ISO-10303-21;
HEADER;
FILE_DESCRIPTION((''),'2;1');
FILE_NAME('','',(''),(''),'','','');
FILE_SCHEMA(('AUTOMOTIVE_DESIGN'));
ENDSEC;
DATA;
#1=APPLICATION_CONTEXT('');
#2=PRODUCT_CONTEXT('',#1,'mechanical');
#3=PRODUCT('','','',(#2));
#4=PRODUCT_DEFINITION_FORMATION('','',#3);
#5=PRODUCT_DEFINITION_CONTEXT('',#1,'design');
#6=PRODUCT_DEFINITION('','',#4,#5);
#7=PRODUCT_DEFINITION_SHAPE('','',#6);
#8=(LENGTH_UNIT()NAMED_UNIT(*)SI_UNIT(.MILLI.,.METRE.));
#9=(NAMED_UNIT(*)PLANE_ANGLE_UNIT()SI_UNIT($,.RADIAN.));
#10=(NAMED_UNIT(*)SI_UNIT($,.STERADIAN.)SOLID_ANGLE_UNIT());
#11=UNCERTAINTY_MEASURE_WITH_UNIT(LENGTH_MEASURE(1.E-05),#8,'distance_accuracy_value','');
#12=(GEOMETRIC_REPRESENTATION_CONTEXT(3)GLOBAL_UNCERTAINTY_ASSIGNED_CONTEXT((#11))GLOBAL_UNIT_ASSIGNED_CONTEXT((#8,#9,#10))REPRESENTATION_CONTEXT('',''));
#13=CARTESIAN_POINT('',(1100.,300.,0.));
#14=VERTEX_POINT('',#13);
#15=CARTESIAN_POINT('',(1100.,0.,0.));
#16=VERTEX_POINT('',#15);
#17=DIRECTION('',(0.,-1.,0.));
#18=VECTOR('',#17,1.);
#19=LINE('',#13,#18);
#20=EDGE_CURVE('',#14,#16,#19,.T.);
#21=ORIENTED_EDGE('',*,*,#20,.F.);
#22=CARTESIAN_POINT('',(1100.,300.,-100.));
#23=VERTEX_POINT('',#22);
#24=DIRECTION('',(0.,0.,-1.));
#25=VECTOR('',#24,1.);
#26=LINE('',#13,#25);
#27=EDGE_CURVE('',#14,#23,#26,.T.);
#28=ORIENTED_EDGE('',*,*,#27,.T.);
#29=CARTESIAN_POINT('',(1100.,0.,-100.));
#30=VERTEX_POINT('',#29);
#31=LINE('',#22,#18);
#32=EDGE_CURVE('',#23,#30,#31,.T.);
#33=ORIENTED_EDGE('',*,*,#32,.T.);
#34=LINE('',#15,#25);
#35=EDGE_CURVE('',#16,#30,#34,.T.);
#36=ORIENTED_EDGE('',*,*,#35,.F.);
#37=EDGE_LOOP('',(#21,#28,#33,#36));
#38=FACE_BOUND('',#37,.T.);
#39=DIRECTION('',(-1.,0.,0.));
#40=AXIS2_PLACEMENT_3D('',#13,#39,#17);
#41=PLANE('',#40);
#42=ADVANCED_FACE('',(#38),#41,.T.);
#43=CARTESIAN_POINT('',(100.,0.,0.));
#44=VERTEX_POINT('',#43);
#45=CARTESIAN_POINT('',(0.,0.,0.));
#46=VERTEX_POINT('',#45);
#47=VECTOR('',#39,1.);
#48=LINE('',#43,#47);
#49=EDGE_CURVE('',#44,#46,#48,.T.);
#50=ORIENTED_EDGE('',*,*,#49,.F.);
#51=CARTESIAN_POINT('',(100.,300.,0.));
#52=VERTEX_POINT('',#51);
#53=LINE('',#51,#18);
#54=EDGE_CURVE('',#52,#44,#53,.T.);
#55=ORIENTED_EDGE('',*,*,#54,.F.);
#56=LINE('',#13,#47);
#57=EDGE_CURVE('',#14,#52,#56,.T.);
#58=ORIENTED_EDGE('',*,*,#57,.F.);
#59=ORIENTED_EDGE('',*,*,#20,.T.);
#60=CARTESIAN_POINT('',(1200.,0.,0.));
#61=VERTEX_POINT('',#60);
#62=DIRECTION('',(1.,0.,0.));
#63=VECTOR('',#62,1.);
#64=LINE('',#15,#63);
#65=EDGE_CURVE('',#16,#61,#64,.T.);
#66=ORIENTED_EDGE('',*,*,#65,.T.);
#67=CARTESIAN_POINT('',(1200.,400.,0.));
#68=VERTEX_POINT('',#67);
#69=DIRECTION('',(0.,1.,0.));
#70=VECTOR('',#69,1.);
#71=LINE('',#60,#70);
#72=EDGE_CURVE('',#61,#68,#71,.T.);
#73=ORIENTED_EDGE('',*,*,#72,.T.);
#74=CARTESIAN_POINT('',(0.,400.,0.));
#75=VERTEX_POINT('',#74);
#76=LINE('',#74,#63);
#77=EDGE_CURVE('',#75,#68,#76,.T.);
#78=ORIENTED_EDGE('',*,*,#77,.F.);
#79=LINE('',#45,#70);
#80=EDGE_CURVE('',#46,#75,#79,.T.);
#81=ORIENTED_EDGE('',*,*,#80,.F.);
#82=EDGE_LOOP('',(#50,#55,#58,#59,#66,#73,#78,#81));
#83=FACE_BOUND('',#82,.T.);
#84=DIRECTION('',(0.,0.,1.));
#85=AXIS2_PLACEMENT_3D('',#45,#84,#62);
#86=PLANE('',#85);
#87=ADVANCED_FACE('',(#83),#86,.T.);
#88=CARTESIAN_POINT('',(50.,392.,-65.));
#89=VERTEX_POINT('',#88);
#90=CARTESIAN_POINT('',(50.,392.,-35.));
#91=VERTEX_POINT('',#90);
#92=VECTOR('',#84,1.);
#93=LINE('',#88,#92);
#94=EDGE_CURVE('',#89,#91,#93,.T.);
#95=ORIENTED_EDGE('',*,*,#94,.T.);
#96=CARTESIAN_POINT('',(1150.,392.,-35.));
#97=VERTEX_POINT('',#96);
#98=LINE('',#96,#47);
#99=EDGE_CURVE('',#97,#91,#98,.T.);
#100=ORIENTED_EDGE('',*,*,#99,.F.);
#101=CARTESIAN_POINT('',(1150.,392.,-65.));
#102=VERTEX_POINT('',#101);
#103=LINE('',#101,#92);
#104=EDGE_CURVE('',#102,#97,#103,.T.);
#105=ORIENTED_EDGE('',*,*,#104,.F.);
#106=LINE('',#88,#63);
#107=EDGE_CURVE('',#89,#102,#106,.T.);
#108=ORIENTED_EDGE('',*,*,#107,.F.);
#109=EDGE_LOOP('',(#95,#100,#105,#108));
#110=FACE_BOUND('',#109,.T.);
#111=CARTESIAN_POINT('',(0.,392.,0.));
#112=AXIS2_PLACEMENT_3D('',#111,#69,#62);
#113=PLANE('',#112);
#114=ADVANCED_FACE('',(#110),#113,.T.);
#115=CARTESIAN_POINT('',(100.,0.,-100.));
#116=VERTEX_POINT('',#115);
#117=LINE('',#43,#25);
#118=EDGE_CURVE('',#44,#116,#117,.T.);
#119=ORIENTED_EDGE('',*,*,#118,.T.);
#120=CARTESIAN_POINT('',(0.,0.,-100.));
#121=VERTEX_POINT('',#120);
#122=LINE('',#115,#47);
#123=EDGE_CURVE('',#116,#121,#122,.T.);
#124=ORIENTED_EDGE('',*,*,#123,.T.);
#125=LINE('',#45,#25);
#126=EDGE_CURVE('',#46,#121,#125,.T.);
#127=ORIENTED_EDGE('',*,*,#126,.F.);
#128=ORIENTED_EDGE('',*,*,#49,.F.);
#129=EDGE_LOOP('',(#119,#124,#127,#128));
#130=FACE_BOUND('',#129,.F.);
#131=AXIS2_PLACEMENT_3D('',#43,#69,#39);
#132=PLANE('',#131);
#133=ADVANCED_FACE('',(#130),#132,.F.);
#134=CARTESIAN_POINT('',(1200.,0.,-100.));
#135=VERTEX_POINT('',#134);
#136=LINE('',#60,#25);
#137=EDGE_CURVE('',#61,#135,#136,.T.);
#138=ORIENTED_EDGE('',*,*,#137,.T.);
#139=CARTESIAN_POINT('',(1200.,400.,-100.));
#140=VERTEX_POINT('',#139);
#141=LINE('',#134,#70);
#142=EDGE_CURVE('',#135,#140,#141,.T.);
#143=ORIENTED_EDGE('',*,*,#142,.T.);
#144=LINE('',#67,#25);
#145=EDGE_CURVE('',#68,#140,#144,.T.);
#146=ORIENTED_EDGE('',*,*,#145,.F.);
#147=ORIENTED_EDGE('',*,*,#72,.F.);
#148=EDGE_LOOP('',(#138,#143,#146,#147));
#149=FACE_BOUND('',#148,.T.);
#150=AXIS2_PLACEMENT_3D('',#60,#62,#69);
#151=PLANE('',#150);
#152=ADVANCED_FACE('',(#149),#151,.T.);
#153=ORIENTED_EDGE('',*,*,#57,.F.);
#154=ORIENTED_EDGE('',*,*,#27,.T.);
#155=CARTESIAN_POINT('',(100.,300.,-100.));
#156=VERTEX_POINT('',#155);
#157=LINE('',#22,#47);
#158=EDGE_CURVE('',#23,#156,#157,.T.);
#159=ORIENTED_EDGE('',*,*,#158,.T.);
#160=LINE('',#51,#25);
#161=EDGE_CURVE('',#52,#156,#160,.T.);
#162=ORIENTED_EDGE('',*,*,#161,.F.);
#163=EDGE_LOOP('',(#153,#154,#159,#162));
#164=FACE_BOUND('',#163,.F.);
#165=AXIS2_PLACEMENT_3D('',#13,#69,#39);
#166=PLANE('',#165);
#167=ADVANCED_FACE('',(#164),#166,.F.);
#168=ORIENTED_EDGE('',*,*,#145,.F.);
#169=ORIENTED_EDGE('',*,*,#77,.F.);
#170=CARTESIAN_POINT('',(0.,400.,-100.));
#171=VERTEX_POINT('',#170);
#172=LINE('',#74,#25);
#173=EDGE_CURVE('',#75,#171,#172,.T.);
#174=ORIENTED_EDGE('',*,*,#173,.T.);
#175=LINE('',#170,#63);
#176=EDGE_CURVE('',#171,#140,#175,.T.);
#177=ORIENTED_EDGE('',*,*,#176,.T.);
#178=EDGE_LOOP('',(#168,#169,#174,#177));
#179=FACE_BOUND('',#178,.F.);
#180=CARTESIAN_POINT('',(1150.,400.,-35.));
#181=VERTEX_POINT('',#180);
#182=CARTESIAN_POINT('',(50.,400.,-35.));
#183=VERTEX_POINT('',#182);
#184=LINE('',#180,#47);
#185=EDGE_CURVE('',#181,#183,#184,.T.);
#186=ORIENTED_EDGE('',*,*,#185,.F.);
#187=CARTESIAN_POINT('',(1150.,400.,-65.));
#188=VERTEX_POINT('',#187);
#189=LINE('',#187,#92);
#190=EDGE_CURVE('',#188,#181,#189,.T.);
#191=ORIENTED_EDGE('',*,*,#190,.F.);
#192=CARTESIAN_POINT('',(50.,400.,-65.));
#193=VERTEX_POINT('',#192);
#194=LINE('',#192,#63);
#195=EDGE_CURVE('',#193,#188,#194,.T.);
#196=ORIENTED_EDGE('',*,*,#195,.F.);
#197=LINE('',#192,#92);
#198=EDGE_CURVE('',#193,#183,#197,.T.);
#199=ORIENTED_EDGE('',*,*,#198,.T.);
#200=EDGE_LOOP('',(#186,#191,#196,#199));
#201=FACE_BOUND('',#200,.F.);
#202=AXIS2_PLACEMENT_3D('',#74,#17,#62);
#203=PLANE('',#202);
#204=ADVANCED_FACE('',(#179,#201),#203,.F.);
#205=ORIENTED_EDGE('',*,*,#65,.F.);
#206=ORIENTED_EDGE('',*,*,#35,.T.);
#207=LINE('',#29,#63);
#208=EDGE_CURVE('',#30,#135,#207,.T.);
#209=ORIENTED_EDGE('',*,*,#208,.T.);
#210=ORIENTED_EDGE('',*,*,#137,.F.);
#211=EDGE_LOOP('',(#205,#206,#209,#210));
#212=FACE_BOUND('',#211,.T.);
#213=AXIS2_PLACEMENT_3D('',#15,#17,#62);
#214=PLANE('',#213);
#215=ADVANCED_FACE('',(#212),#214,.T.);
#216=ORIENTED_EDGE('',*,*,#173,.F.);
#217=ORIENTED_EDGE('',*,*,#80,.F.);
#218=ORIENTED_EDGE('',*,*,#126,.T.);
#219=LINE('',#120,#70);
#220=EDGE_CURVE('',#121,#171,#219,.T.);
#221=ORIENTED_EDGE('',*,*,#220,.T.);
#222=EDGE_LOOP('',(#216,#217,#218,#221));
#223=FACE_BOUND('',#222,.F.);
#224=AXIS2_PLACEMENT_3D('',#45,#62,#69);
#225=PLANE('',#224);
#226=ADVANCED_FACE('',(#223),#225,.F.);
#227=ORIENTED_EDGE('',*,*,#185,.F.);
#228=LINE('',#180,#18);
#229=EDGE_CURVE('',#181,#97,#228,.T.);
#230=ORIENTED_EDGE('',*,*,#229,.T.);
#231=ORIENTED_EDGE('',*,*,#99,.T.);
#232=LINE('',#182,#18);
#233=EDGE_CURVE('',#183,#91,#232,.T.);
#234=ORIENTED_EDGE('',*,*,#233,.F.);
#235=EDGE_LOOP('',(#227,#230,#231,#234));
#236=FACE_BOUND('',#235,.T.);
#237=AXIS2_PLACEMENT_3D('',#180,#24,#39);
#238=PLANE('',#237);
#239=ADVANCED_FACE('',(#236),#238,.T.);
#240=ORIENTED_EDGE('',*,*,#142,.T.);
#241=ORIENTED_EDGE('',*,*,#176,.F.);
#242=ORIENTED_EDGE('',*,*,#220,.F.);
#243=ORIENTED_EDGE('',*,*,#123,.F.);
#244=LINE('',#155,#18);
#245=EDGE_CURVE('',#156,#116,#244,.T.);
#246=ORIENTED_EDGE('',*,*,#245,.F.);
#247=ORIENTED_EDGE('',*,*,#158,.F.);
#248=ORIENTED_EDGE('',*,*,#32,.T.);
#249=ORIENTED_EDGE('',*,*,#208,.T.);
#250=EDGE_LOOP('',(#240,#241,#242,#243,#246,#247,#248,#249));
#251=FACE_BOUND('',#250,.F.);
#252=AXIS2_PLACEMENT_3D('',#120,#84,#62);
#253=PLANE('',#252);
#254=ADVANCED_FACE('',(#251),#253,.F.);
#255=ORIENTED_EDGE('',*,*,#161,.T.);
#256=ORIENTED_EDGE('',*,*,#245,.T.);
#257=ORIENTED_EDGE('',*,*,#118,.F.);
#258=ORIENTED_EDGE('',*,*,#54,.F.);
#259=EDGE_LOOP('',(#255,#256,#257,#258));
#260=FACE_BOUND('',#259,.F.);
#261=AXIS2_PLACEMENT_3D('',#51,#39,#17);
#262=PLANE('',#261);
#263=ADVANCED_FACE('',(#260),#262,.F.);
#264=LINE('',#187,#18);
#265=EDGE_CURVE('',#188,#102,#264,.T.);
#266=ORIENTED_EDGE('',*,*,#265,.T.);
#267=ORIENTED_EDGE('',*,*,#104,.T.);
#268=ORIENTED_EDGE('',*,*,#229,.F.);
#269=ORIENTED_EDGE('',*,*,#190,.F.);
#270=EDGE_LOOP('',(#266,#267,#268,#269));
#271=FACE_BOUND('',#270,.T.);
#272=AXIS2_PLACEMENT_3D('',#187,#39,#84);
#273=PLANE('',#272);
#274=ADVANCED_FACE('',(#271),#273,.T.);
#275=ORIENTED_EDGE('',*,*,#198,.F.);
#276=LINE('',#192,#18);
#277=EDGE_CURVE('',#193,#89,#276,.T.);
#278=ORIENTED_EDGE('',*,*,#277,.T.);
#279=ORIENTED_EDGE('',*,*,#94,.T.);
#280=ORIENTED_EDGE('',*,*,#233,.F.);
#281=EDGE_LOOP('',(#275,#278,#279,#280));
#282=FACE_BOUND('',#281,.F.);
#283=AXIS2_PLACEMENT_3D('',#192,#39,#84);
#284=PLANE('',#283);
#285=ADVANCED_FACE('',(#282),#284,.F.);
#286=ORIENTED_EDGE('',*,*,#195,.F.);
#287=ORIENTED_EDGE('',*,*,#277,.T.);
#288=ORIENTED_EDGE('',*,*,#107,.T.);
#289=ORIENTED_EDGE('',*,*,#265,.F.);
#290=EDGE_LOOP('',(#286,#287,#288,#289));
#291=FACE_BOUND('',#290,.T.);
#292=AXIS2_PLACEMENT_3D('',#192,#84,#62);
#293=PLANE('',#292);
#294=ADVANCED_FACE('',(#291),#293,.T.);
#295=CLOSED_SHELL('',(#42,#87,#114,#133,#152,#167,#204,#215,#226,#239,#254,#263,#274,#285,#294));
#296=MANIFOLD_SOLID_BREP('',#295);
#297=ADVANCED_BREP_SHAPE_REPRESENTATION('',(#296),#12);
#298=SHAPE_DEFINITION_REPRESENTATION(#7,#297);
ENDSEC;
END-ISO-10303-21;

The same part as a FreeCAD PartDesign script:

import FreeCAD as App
import Part
import Sketcher
from FreeCAD import Vector

doc = App.newDocument("Part")
params = doc.addObject("Spreadsheet::Sheet", "Params")
for row, (alias, value) in enumerate([
    ("sketch1_width", "100 mm"),
    ("sketch1_width2", "1000 mm"),
    ("sketch1_height", "400 mm"),
    ("sketch1_height2", "300 mm"),
    ("pad1_length", "100 mm"),
    ("sketch2_height", "30 mm"),
    ("sketch2_width", "1100 mm"),
    ("pocket1_length", "8 mm"),
], start=1):
    params.set(f"A{row}", alias)
    params.set(f"B{row}", "=" + value)
    params.setAlias(f"B{row}", alias)

body = doc.addObject("PartDesign::Body", "Body")

# Sketch on XY plane
sketch1 = body.newObject("Sketcher::SketchObject", "Sketch")
sketch1.AttachmentSupport = (doc.getObject("XY_Plane"), [""])
sketch1.MapMode = "FlatFace"
sketch1.addGeometry([
    Part.LineSegment(Vector(0, 400, 0), Vector(0, 0, 0)),  # 0
    Part.LineSegment(Vector(0, 0, 0), Vector(100, 0, 0)),  # 1
    Part.LineSegment(Vector(100, 0, 0), Vector(100, 300, 0)),  # 2
    Part.LineSegment(Vector(100, 300, 0), Vector(1100, 300, 0)),  # 3
    Part.LineSegment(Vector(1100, 300, 0), Vector(1100, 0, 0)),  # 4
    Part.LineSegment(Vector(1100, 0, 0), Vector(1200, 0, 0)),  # 5
    Part.LineSegment(Vector(1200, 0, 0), Vector(1200, 400, 0)),  # 6
    Part.LineSegment(Vector(1200, 400, 0), Vector(0, 400, 0)),  # 7
], False)
sketch1.addConstraint([
    Sketcher.Constraint("Coincident", 0, 2, 1, 1),
    Sketcher.Constraint("Coincident", 1, 2, 2, 1),
    Sketcher.Constraint("Coincident", 2, 2, 3, 1),
    Sketcher.Constraint("Coincident", 3, 2, 4, 1),
    Sketcher.Constraint("Coincident", 4, 2, 5, 1),
    Sketcher.Constraint("Coincident", 5, 2, 6, 1),
    Sketcher.Constraint("Coincident", 6, 2, 7, 1),
    Sketcher.Constraint("Coincident", 7, 2, 0, 1),
    Sketcher.Constraint("Vertical", 0),
    Sketcher.Constraint("Horizontal", 1),
    Sketcher.Constraint("Vertical", 2),
    Sketcher.Constraint("Horizontal", 3),
    Sketcher.Constraint("Vertical", 4),
    Sketcher.Constraint("Horizontal", 5),
    Sketcher.Constraint("Vertical", 6),
    Sketcher.Constraint("Horizontal", 7),
    Sketcher.Constraint("Coincident", 0, 2, -1, 1),
    Sketcher.Constraint("PointOnObject", 4, 2, -1),
    Sketcher.Constraint("Equal", 1, 5),
    Sketcher.Constraint("DistanceX", 1, 1, 1, 2, 100.0),
    Sketcher.Constraint("DistanceX", 3, 1, 3, 2, 1000.0),
    Sketcher.Constraint("DistanceY", 0, 2, 0, 1, 400.0),
    Sketcher.Constraint("DistanceY", 2, 1, 2, 2, 300.0),
])
sketch1.setExpression("Constraints[19]", "Params.sketch1_width")
sketch1.setExpression("Constraints[20]", "Params.sketch1_width2")
sketch1.setExpression("Constraints[21]", "Params.sketch1_height")
sketch1.setExpression("Constraints[22]", "Params.sketch1_height2")
pad1 = body.newObject("PartDesign::Pad", "Pad")
pad1.Profile = sketch1
pad1.setExpression("Length", "Params.pad1_length")
pad1.Reversed = True

# Sketch on XZ plane
sketch2 = body.newObject("Sketcher::SketchObject", "Sketch001")
sketch2.AttachmentSupport = (doc.getObject("XZ_Plane"), [""])
sketch2.MapMode = "FlatFace"
sketch2.AttachmentOffset = App.Placement(Vector(0, 0, -400), App.Rotation())
sketch2.addGeometry([
    Part.LineSegment(Vector(1150, -65, 0), Vector(50, -65, 0)),
    Part.LineSegment(Vector(50, -65, 0), Vector(50, -35, 0)),
    Part.LineSegment(Vector(50, -35, 0), Vector(1150, -35, 0)),
    Part.LineSegment(Vector(1150, -35, 0), Vector(1150, -65, 0)),
], False)
sketch2.addConstraint([
    Sketcher.Constraint("Coincident", 0, 2, 1, 1),
    Sketcher.Constraint("Coincident", 1, 2, 2, 1),
    Sketcher.Constraint("Coincident", 2, 2, 3, 1),
    Sketcher.Constraint("Coincident", 3, 2, 0, 1),
    Sketcher.Constraint("Horizontal", 0),
    Sketcher.Constraint("Vertical", 1),
    Sketcher.Constraint("Horizontal", 2),
    Sketcher.Constraint("Vertical", 3),
    Sketcher.Constraint("DistanceY", 1, 1, 1, 2, 30.0),
    Sketcher.Constraint("DistanceX", -1, 1, 0, 2, 50.0),
    Sketcher.Constraint("DistanceY", 1, 2, -1, 1, 35.0),
    Sketcher.Constraint("DistanceX", 0, 2, 0, 1, 1100.0),
])
sketch2.setExpression("Constraints[8]", "Params.sketch2_height")
sketch2.setExpression("Constraints[11]", "Params.sketch2_width")
pocket1 = body.newObject("PartDesign::Pocket", "Pocket")
pocket1.Profile = sketch2
pocket1.setExpression("Length", "Params.pocket1_length")
pocket1.Reversed = True

doc.recompute()
